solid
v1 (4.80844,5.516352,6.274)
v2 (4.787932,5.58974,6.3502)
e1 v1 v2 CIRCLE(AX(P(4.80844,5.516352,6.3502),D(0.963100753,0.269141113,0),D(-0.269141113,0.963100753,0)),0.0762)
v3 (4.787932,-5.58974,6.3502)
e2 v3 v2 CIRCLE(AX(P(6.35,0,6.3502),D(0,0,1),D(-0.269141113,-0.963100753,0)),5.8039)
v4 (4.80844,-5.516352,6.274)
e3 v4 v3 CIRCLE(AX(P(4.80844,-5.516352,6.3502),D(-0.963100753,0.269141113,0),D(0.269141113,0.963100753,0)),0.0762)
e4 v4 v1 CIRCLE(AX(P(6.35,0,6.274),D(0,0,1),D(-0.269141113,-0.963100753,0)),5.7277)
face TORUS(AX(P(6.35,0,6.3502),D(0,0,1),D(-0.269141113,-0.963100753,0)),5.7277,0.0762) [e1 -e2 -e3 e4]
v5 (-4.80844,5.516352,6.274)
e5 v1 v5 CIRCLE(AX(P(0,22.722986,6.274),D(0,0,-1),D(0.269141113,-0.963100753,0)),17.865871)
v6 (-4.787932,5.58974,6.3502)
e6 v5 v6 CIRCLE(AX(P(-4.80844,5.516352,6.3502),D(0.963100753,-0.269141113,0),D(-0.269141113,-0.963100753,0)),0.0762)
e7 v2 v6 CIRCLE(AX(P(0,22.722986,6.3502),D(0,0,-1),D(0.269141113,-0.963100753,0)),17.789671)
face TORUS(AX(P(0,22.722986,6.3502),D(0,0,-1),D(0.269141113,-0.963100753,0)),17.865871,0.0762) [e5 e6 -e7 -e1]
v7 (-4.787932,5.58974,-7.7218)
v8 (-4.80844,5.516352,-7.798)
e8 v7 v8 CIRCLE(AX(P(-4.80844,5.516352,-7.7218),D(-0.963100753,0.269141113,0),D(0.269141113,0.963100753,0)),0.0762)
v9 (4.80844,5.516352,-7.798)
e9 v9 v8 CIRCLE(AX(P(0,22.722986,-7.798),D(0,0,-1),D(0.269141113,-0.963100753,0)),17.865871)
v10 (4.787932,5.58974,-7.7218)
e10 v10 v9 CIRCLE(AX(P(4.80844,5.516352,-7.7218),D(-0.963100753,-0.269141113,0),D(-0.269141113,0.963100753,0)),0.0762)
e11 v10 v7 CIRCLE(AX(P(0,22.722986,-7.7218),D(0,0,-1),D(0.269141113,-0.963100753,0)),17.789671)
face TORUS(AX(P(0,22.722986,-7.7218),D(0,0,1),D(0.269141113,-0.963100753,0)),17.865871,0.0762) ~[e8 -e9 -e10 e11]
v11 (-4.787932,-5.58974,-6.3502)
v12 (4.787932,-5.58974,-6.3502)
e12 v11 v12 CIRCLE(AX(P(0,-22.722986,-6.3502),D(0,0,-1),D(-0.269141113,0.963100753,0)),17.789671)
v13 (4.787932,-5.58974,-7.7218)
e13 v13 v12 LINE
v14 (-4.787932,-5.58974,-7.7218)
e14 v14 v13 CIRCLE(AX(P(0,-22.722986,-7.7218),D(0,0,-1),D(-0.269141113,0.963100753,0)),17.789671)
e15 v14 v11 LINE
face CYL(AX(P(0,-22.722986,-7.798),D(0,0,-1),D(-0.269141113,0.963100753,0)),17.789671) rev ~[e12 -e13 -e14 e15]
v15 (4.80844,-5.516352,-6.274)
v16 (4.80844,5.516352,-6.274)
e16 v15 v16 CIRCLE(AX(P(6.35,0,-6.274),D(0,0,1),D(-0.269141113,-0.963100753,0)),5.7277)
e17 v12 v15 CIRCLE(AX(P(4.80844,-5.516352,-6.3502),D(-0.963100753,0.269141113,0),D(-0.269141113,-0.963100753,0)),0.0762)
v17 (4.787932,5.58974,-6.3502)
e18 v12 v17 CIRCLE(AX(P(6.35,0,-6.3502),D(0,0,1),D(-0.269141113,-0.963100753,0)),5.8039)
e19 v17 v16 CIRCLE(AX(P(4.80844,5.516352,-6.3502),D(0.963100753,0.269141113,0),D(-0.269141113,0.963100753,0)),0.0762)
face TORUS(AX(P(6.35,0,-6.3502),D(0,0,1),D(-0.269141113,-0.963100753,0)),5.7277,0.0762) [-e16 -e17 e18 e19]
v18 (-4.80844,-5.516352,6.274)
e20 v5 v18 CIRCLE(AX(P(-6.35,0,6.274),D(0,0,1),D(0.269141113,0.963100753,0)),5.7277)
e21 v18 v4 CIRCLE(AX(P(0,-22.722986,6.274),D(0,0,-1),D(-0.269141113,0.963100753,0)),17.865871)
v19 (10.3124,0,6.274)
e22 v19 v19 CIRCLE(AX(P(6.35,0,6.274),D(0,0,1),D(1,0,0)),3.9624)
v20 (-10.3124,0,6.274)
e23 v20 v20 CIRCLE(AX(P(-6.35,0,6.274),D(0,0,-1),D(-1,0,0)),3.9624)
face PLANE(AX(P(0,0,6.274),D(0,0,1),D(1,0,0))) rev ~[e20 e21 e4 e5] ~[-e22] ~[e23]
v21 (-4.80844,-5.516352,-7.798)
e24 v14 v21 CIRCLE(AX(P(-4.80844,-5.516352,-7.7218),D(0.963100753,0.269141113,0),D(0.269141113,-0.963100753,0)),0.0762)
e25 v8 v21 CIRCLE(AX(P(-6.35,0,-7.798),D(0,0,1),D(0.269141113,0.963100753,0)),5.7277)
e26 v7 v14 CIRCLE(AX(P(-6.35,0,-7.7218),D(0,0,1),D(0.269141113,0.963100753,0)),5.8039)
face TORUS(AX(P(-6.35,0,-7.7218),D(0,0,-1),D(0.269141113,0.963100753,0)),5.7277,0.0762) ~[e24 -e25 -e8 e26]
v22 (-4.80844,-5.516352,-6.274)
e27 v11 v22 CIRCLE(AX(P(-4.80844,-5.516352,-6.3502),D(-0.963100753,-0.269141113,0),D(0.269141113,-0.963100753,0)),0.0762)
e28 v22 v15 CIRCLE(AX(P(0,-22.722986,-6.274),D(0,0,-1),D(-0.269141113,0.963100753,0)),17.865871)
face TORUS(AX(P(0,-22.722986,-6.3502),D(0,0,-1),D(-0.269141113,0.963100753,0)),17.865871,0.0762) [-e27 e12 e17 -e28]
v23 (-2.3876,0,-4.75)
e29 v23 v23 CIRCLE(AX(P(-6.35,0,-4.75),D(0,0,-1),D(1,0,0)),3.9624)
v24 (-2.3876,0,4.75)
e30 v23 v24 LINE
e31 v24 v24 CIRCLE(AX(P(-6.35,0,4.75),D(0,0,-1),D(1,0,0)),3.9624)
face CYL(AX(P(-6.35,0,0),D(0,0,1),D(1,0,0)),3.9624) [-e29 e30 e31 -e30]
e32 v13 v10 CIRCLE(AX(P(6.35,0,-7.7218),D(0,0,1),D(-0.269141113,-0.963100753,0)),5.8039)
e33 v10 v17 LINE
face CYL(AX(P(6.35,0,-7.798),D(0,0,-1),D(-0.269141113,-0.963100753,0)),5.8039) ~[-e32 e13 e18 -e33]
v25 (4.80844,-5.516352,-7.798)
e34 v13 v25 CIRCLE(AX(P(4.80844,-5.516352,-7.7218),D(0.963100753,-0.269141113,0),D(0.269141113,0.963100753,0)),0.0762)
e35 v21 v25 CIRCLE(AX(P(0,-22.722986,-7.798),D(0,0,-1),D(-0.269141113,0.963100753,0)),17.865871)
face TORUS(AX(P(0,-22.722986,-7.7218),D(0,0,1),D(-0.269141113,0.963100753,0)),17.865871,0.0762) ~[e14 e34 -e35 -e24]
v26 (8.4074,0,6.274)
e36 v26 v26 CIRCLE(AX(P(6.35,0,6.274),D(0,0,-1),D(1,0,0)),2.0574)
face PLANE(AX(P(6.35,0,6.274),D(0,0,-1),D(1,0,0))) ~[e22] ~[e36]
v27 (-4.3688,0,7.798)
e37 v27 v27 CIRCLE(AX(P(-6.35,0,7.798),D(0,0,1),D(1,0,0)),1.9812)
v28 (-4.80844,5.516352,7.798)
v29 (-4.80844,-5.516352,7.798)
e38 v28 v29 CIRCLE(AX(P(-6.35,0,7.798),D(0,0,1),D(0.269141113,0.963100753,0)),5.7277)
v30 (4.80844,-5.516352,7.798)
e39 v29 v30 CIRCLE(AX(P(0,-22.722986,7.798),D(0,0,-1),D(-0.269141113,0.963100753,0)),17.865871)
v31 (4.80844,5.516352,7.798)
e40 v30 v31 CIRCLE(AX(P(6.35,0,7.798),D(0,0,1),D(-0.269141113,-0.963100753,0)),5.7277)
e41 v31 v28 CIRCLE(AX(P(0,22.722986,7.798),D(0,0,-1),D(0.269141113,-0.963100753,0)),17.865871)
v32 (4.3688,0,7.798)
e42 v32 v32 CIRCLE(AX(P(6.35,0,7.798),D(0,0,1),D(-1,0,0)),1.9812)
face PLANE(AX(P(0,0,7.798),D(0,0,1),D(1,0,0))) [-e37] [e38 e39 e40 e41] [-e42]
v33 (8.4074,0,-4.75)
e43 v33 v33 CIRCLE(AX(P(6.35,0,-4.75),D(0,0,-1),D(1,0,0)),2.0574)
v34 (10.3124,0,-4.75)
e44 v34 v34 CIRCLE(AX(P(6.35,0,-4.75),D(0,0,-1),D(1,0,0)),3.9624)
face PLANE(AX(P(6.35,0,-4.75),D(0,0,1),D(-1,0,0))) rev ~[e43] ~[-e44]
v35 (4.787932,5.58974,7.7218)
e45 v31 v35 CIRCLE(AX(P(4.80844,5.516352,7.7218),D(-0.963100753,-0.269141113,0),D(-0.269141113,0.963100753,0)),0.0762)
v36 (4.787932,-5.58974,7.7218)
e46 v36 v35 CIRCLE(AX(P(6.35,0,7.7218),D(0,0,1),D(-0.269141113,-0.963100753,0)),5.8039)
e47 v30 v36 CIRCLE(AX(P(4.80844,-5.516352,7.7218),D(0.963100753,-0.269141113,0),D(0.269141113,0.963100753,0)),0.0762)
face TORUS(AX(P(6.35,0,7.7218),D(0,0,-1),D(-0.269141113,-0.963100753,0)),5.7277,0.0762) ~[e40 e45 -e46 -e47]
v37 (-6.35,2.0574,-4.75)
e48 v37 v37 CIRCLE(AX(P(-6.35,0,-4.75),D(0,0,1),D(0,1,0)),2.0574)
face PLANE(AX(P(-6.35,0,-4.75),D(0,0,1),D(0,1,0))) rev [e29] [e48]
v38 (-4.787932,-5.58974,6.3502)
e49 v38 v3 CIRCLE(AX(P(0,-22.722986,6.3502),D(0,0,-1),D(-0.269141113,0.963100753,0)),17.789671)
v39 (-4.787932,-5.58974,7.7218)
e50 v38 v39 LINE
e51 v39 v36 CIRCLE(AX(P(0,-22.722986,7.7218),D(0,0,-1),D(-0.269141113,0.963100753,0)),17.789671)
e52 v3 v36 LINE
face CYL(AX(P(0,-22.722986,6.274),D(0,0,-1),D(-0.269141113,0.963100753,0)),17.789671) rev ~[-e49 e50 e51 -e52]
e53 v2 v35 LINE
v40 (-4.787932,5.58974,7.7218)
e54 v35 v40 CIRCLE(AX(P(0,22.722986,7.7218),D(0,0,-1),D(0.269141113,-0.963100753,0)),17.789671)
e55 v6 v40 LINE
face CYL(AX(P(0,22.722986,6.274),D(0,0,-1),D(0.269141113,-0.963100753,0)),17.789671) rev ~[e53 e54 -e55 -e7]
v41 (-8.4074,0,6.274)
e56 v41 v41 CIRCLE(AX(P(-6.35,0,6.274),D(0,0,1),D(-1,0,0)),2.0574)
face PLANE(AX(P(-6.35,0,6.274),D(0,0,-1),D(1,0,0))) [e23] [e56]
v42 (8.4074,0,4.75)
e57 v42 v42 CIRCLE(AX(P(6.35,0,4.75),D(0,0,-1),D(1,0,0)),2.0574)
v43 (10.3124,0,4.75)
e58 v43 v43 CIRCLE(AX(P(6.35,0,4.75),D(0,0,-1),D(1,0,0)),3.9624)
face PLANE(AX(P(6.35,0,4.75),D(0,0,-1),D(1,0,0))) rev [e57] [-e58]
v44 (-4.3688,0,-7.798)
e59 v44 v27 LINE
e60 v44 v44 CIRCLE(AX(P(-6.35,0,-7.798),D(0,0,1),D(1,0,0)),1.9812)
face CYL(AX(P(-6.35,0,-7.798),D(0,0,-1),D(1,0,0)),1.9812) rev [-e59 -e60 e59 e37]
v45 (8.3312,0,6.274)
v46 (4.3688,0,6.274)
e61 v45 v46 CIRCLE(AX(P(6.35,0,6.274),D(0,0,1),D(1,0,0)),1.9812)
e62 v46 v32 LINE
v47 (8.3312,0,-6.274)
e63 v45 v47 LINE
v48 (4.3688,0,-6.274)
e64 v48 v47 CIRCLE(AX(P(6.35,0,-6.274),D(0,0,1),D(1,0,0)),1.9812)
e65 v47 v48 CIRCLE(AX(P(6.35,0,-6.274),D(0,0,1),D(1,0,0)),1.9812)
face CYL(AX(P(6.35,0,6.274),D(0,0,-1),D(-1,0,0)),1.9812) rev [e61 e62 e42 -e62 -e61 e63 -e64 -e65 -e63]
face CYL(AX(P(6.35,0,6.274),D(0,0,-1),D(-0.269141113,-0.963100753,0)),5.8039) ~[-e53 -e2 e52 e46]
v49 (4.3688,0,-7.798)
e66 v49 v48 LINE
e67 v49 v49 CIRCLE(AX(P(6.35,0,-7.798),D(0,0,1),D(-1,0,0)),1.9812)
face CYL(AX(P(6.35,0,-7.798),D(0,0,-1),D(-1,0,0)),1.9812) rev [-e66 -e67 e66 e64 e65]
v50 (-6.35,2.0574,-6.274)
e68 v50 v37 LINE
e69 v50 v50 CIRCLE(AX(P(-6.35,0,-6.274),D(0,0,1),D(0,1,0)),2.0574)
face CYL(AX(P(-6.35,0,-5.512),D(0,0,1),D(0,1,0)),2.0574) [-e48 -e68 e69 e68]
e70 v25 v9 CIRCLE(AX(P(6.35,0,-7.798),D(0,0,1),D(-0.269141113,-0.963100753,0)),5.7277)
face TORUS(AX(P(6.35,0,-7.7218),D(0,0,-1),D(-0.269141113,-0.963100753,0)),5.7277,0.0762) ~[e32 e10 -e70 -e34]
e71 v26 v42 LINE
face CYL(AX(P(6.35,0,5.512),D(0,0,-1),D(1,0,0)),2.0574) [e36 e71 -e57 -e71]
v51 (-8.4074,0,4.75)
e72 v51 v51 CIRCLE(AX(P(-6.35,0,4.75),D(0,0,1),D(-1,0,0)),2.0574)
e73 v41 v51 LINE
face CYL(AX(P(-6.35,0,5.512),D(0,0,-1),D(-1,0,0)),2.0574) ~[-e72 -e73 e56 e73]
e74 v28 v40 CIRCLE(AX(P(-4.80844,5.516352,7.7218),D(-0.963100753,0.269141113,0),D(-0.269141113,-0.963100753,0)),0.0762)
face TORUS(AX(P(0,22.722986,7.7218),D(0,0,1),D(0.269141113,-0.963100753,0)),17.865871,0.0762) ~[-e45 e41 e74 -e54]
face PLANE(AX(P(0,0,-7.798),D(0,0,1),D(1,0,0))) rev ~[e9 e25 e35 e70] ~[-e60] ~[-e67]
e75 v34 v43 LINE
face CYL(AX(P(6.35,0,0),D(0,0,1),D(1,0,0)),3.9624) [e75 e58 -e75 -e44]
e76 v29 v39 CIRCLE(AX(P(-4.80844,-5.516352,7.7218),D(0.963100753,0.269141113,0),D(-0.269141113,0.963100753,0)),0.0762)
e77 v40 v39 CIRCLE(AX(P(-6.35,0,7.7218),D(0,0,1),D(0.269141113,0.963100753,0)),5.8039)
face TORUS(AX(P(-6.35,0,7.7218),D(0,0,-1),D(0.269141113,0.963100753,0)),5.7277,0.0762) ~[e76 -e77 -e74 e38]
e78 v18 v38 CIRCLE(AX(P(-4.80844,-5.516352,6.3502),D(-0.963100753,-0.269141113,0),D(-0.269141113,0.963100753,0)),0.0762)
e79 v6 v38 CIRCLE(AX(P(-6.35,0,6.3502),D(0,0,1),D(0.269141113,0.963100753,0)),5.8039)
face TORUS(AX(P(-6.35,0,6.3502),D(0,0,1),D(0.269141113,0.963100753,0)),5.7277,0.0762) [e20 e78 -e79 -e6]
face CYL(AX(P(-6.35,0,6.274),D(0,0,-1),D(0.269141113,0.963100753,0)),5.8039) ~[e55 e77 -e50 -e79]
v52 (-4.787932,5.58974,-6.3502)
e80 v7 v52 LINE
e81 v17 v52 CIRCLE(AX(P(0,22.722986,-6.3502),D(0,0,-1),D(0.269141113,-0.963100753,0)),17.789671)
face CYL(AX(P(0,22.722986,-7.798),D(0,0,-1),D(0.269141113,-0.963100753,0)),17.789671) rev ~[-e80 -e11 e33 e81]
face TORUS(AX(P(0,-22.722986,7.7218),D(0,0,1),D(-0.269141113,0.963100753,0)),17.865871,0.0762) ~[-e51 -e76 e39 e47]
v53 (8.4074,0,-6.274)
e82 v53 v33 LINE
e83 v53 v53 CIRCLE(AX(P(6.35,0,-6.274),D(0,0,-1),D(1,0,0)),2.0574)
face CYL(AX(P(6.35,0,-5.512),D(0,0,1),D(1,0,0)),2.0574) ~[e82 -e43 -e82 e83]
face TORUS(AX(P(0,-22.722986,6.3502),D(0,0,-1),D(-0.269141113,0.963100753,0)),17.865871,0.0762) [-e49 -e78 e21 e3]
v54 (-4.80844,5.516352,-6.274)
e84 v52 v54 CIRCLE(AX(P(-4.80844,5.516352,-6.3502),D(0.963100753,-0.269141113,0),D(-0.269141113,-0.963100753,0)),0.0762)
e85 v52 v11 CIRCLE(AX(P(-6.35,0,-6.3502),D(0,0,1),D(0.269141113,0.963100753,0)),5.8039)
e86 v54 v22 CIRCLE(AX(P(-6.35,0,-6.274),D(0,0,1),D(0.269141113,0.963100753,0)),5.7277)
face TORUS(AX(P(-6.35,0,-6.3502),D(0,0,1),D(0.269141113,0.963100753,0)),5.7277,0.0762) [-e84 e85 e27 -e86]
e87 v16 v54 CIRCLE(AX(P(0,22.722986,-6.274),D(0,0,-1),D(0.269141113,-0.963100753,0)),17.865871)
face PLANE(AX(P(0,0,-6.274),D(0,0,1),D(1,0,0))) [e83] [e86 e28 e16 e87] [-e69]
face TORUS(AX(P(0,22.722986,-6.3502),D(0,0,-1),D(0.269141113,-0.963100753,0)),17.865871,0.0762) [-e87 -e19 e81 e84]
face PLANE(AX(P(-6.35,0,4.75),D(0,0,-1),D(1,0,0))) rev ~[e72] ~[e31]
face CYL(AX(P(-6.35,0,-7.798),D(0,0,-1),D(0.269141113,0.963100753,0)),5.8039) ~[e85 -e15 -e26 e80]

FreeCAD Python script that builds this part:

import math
import FreeCAD as App
import Part
import Sketcher
Q = App.Units.Quantity


def edges_at(feature, points):
    """Names of the edges that pass closest to the given points."""
    edges = feature.Shape.Edges
    near = lambda p: min(range(len(edges)), key=lambda i: edges[i].distToShape(Part.Vertex(*p))[0])
    return sorted({f"Edge{near(p) + 1}" for p in points})


def add_polygon(sketch, points):
    """Adds a closed chain of lines whose ends are joined by coincident constraints."""
    first, n = sketch.GeometryCount, len(points)
    for a, b in zip(points, points[1:] + points[:1]):
        sketch.addGeometry(Part.LineSegment(App.Vector(*a, 0), App.Vector(*b, 0)), False)
    for i in range(n):
        sketch.addConstraint(Sketcher.Constraint("Coincident", first + i, 2, first + (i + 1) % n, 1))

doc = App.newDocument("Part")
body = doc.addObject("PartDesign::Body", "Body")

sketch1 = body.newObject("Sketcher::SketchObject", "Sketch")
sketch1.AttachmentSupport = (doc.getObject("XY_Plane"), [""])
sketch1.MapMode = "FlatFace"
sketch1.addGeometry([
    Part.Circle(App.Vector(-6.3, 0, 0), App.Vector(0, 0, 1), 4),
    Part.Circle(App.Vector(-6.3, 0, 0), App.Vector(0, 0, 1), 2),
], False)
sketch1.addConstraint([
    Sketcher.Constraint("Coincident", 1, 3, 0, 3),
    Sketcher.Constraint("PointOnObject", 0, 3, -1),
    Sketcher.Constraint("Diameter", 0, Q("0.312 in")),
    Sketcher.Constraint("Diameter", 1, Q("0.156 in")),
    Sketcher.Constraint("DistanceX", 0, 3, -1, 1, Q("0.25 in")),
])
pad1 = body.newObject("PartDesign::Pad", "Pad")
pad1.Profile = sketch1
pad1.Length = 12.548
pad1.Midplane = True
body2 = doc.addObject("PartDesign::Body", "Body001")

sketch2 = body2.newObject("Sketcher::SketchObject", "Sketch001")
sketch2.AttachmentSupport = (doc.getObject("XY_Plane001"), [""])
sketch2.MapMode = "FlatFace"
sketch2.addGeometry([
    Part.Circle(App.Vector(6.3, 0, 0), App.Vector(0, 0, 1), 4),
    Part.Circle(App.Vector(6.3, 0, 0), App.Vector(0, 0, 1), 2),
], False)
sketch2.addConstraint([
    Sketcher.Constraint("Coincident", 1, 3, 0, 3),
    Sketcher.Constraint("PointOnObject", 0, 3, -1),
    Sketcher.Constraint("Diameter", 0, Q("0.312 in")),
    Sketcher.Constraint("Diameter", 1, Q("0.156 in")),
    Sketcher.Constraint("DistanceX", -1, 1, 0, 3, Q("0.25 in")),
])
pad2 = body2.newObject("PartDesign::Pad", "Pad001")
pad2.Profile = sketch2
pad2.Length = 12.548
pad2.Midplane = True
body.AllowCompound = True
doc.recompute()

boolean = body.newObject("PartDesign::Boolean", "Boolean")
boolean.Type = "Fuse"
boolean.addObjects([body2])

sketch3 = body.newObject("Sketcher::SketchObject", "Sketch002")
sketch3.AttachmentSupport = (doc.getObject("XY_Plane"), [""])
sketch3.MapMode = "FlatFace"
sketch3.AttachmentOffset = App.Placement(App.Vector(0, 0, 6.274), App.Rotation())
sketch3.addGeometry([
    Part.ArcOfCircle(Part.Circle(App.Vector(6.3, 0, 0), App.Vector(0, 0, 1), 5.8), math.radians(-106), math.radians(106)),
    Part.ArcOfCircle(Part.Circle(App.Vector(0, 22.7, 0), App.Vector(0, 0, 1), 17.8), math.radians(-106), math.radians(-74)),
    Part.ArcOfCircle(Part.Circle(App.Vector(-6.3, 0, 0), App.Vector(0, 0, 1), 5.8), math.radians(74), math.radians(286)),
    Part.ArcOfCircle(Part.Circle(App.Vector(0, -22.7, 0), App.Vector(0, 0, 1), 17.8), math.radians(74), math.radians(106)),
    Part.Circle(App.Vector(-6.3, 0, 0), App.Vector(0, 0, 1), 2),
    Part.Circle(App.Vector(6.3, 0, 0), App.Vector(0, 0, 1), 2),
], False)
sketch3.addConstraint([
    Sketcher.Constraint("Tangent", 0, 2, 1, 2),
    Sketcher.Constraint("Tangent", 1, 1, 2, 1),
    Sketcher.Constraint("Tangent", 2, 2, 3, 2),
    Sketcher.Constraint("Tangent", 3, 1, 0, 1),
    Sketcher.Constraint("Coincident", 4, 3, 2, 3),
    Sketcher.Constraint("Coincident", 5, 3, 0, 3),
    Sketcher.Constraint("Equal", 0, 2),
    Sketcher.Constraint("Equal", 1, 3),
    Sketcher.Constraint("Equal", 4, 5),
    Sketcher.Constraint("Symmetric", 0, 3, 2, 3, -1, 1),
    Sketcher.Constraint("PointOnObject", 0, 3, -1),
    Sketcher.Constraint("Diameter", 4, Q("0.156 in")),
    Sketcher.Constraint("Radius", 0, Q("0.2285 in")),
    Sketcher.Constraint("DistanceX", 2, 3, 0, 3, Q("0.5 in")),
    Sketcher.Constraint("Radius", 1, 17.789671),
])
pad3 = body.newObject("PartDesign::Pad", "Pad002")
pad3.Profile = sketch3
pad3.Length = Q("0.06 in")

sketch4 = body.newObject("Sketcher::SketchObject", "Sketch003")
sketch4.AttachmentSupport = (doc.getObject("XY_Plane"), [""])
sketch4.MapMode = "FlatFace"
sketch4.AttachmentOffset = App.Placement(App.Vector(0, 0, -7.798), App.Rotation())
sketch4.addGeometry([
    Part.ArcOfCircle(Part.Circle(App.Vector(6.3, 0, 0), App.Vector(0, 0, 1), 5.8), math.radians(-106), math.radians(106)),
    Part.ArcOfCircle(Part.Circle(App.Vector(0, 22.7, 0), App.Vector(0, 0, 1), 17.8), math.radians(-106), math.radians(-74)),
    Part.ArcOfCircle(Part.Circle(App.Vector(-6.3, 0, 0), App.Vector(0, 0, 1), 5.8), math.radians(74), math.radians(286)),
    Part.ArcOfCircle(Part.Circle(App.Vector(0, -22.7, 0), App.Vector(0, 0, 1), 17.8), math.radians(74), math.radians(106)),
    Part.Circle(App.Vector(-6.3, 0, 0), App.Vector(0, 0, 1), 2),
    Part.Circle(App.Vector(6.3, 0, 0), App.Vector(0, 0, 1), 2),
], False)
sketch4.addConstraint([
    Sketcher.Constraint("Tangent", 0, 2, 1, 2),
    Sketcher.Constraint("Tangent", 1, 1, 2, 1),
    Sketcher.Constraint("Tangent", 2, 2, 3, 2),
    Sketcher.Constraint("Tangent", 3, 1, 0, 1),
    Sketcher.Constraint("Coincident", 4, 3, 2, 3),
    Sketcher.Constraint("Coincident", 5, 3, 0, 3),
    Sketcher.Constraint("Equal", 0, 2),
    Sketcher.Constraint("Equal", 1, 3),
    Sketcher.Constraint("Equal", 4, 5),
    Sketcher.Constraint("Symmetric", 0, 3, 2, 3, -1, 1),
    Sketcher.Constraint("PointOnObject", 0, 3, -1),
    Sketcher.Constraint("Diameter", 4, Q("0.156 in")),
    Sketcher.Constraint("Radius", 0, Q("0.2285 in")),
    Sketcher.Constraint("DistanceX", 2, 3, 0, 3, Q("0.5 in")),
    Sketcher.Constraint("Radius", 1, 17.789671),
])
pad4 = body.newObject("PartDesign::Pad", "Pad003")
pad4.Profile = sketch4
pad4.Length = Q("0.06 in")
doc.recompute()

fillet = body.newObject("PartDesign::Fillet", "Fillet")
fillet.Base = (pad4, edges_at(pad4, [
    (0, -4.933, 6.274),
    (0, 4.933, 6.274),
    (0, -4.933, 7.798),
    (12.154, 0, 6.274),
    (0, 4.933, 7.798),
    (-12.154, 0, 6.274),
    (12.154, 0, -6.274),
    (-12.154, 0, -6.274),
    (0, -4.933, -6.274),
    (-12.154, 0, -7.798),
    (0, 4.933, -6.274),
    (12.154, 0, -7.798),
    (0, -4.933, -7.798),
    (0, 4.933, -7.798),
    (12.154, 0, 7.798),
    (-12.154, 0, 7.798),
]))
fillet.Radius = Q("0.003 in")

sketch5 = body.newObject("Sketcher::SketchObject", "Sketch004")
sketch5.AttachmentSupport = (doc.getObject("YZ_Plane"), [""])
sketch5.MapMode = "FlatFace"
sketch5.AttachmentOffset = App.Placement(App.Vector(0, 0, 0.25 * 25.4), App.Rotation())
add_polygon(sketch5, [(4, 6.3), (2.1, 6.3), (2.1, 4.8), (4, 4.8)])
sketch5.addConstraint([
    Sketcher.Constraint("Horizontal", 0),
    Sketcher.Constraint("Vertical", 1),
    Sketcher.Constraint("Horizontal", 2),
    Sketcher.Constraint("Vertical", 3),
    Sketcher.Constraint("DistanceY", 1, 2, 1, 1, Q("0.06 in")),
    Sketcher.Constraint("DistanceX", 0, 2, 0, 1, Q("0.075 in")),
    Sketcher.Constraint("DistanceX", -1, 1, 0, 2, Q("0.081 in")),
    Sketcher.Constraint("DistanceY", -1, 1, 0, 2, 6.274),
])
groove = body.newObject("PartDesign::Groove", "Groove")
groove.Profile = sketch5
groove.ReferenceAxis = (sketch5, ["V_Axis"])
groove.Angle = 360
doc.recompute()

mirrored = body.newObject("PartDesign::Mirrored", "Mirrored")
mirrored.Originals = [groove]
mirrored.MirrorPlane = (doc.getObject("YZ_Plane"), [""])
body.Tip = mirrored
doc.recompute()

mirrored2 = body.newObject("PartDesign::Mirrored", "Mirrored001")
mirrored2.Originals = [groove]
mirrored2.MirrorPlane = (doc.getObject("XY_Plane"), [""])
body.Tip = mirrored2

sketch6 = body.newObject("Sketcher::SketchObject", "Sketch005")
sketch6.AttachmentSupport = (doc.getObject("YZ_Plane"), [""])
sketch6.MapMode = "FlatFace"
sketch6.AttachmentOffset = App.Placement(App.Vector(0, 0, -0.25 * 25.4), App.Rotation())
add_polygon(sketch6, [(4, -6.3), (2.1, -6.3), (2.1, -4.8), (4, -4.8)])
sketch6.addConstraint([
    Sketcher.Constraint("Horizontal", 0),
    Sketcher.Constraint("Vertical", 1),
    Sketcher.Constraint("Horizontal", 2),
    Sketcher.Constraint("Vertical", 3),
    Sketcher.Constraint("DistanceY", 1, 1, 1, 2, Q("0.06 in")),
    Sketcher.Constraint("DistanceX", 0, 2, 0, 1, Q("0.075 in")),
    Sketcher.Constraint("DistanceX", -1, 1, 0, 2, Q("0.081 in")),
    Sketcher.Constraint("DistanceY", 0, 2, -1, 1, 6.274),
])
groove2 = body.newObject("PartDesign::Groove", "Groove001")
groove2.Profile = sketch6
groove2.ReferenceAxis = (sketch6, ["V_Axis"])
groove2.Angle = 360

doc.recompute()
